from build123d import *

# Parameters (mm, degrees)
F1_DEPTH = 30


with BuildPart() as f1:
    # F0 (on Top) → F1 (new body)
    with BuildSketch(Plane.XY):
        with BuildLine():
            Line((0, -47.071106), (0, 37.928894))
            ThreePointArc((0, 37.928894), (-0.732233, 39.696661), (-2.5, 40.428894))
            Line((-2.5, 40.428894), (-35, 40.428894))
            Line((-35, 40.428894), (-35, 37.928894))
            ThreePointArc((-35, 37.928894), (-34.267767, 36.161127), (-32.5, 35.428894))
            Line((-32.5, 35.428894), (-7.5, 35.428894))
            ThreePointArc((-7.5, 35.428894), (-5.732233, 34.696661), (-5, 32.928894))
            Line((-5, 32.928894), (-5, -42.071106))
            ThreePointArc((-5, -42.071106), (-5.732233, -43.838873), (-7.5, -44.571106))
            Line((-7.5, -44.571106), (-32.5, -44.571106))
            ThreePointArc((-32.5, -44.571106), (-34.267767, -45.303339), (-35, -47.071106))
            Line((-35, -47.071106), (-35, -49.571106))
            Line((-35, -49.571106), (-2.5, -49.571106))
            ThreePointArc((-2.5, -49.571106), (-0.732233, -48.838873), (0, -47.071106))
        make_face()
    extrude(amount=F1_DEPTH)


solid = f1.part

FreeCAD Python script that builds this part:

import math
import FreeCAD as App
import Part
import Sketcher
from FreeCAD import Vector

doc = App.newDocument("Part")
params = doc.addObject("Spreadsheet::Sheet", "Params")
for row, (alias, value) in enumerate([
    ("sketch1_radius", "2.5 mm"),
    ("sketch1_width", "25 mm"),
    ("sketch1_height", "85 mm"),
    ("sketch1_width2", "32.5 mm"),
    ("pad1_length", "30 mm"),
], start=1):
    params.set(f"A{row}", alias)
    params.set(f"B{row}", "=" + value)
    params.setAlias(f"B{row}", alias)

body = doc.addObject("PartDesign::Body", "Body")

# Sketch on XY plane
sketch1 = body.newObject("Sketcher::SketchObject", "Sketch")
sketch1.AttachmentSupport = (doc.getObject("XY_Plane"), [""])
sketch1.MapMode = "FlatFace"
sketch1.addGeometry(Part.LineSegment(Vector(0, -47.1, 0), Vector(0, 37.9, 0)), False)
sketch1.addGeometry(Part.ArcOfCircle(Part.Circle(Vector(-2.5, 37.9, 0), Vector(0, 0, 1), 2.5), math.radians(0), math.radians(90)), False)
sketch1.addGeometry(Part.LineSegment(Vector(-2.5, 40.4, 0), Vector(-35, 40.4, 0)), False)
sketch1.addGeometry(Part.LineSegment(Vector(-35, 40.4, 0), Vector(-35, 37.9, 0)), False)
sketch1.addGeometry(Part.ArcOfCircle(Part.Circle(Vector(-32.5, 37.9, 0), Vector(0, 0, 1), 2.5), math.radians(180), math.radians(270)), False)
sketch1.addGeometry(Part.LineSegment(Vector(-32.5, 35.4, 0), Vector(-7.5, 35.4, 0)), False)
sketch1.addGeometry(Part.ArcOfCircle(Part.Circle(Vector(-7.5, 32.9, 0), Vector(0, 0, 1), 2.5), math.radians(0), math.radians(90)), False)
sketch1.addGeometry(Part.LineSegment(Vector(-5, 32.9, 0), Vector(-5, -42.1, 0)), False)
sketch1.addGeometry(Part.ArcOfCircle(Part.Circle(Vector(-7.5, -42.1, 0), Vector(0, 0, 1), 2.5), math.radians(-90), math.radians(0)), False)
sketch1.addGeometry(Part.LineSegment(Vector(-7.5, -44.6, 0), Vector(-32.5, -44.6, 0)), False)
sketch1.addGeometry(Part.ArcOfCircle(Part.Circle(Vector(-32.5, -47.1, 0), Vector(0, 0, 1), 2.5), math.radians(90), math.radians(180)), False)
sketch1.addGeometry(Part.LineSegment(Vector(-35, -47.1, 0), Vector(-35, -49.6, 0)), False)
sketch1.addGeometry(Part.LineSegment(Vector(-35, -49.6, 0), Vector(-2.5, -49.6, 0)), False)
sketch1.addGeometry(Part.ArcOfCircle(Part.Circle(Vector(-2.5, -47.1, 0), Vector(0, 0, 1), 2.5), math.radians(-90), math.radians(0)), False)
sketch1.addConstraint(Sketcher.Constraint("Tangent", 0, 2, 1, 1))
sketch1.addConstraint(Sketcher.Constraint("Tangent", 1, 2, 2, 1))
sketch1.addConstraint(Sketcher.Constraint("Coincident", 2, 2, 3, 1))
sketch1.addConstraint(Sketcher.Constraint("Tangent", 3, 2, 4, 1))
sketch1.addConstraint(Sketcher.Constraint("Tangent", 4, 2, 5, 1))
sketch1.addConstraint(Sketcher.Constraint("Tangent", 5, 2, 6, 2))
sketch1.addConstraint(Sketcher.Constraint("Tangent", 6, 1, 7, 1))
sketch1.addConstraint(Sketcher.Constraint("Tangent", 7, 2, 8, 2))
sketch1.addConstraint(Sketcher.Constraint("Tangent", 8, 1, 9, 1))
sketch1.addConstraint(Sketcher.Constraint("Tangent", 9, 2, 10, 1))
sketch1.addConstraint(Sketcher.Constraint("Tangent", 10, 2, 11, 1))
sketch1.addConstraint(Sketcher.Constraint("Coincident", 11, 2, 12, 1))
sketch1.addConstraint(Sketcher.Constraint("Tangent", 12, 2, 13, 1))
sketch1.addConstraint(Sketcher.Constraint("Tangent", 13, 2, 0, 1))
sketch1.addConstraint(Sketcher.Constraint("Vertical", 0))
sketch1.addConstraint(Sketcher.Constraint("Horizontal", 2))
sketch1.addConstraint(Sketcher.Constraint("Vertical", 3))
sketch1.addConstraint(Sketcher.Constraint("Horizontal", 5))
sketch1.addConstraint(Sketcher.Constraint("Vertical", 7))
sketch1.addConstraint(Sketcher.Constraint("Horizontal", 9))
sketch1.addConstraint(Sketcher.Constraint("Vertical", 11))
sketch1.addConstraint(Sketcher.Constraint("Horizontal", 12))
sketch1.addConstraint(Sketcher.Constraint("Equal", 1, 4))
sketch1.addConstraint(Sketcher.Constraint("Equal", 4, 6))
sketch1.addConstraint(Sketcher.Constraint("Equal", 6, 8))
sketch1.addConstraint(Sketcher.Constraint("Equal", 8, 10))
sketch1.addConstraint(Sketcher.Constraint("Equal", 10, 13))
sketch1.addConstraint(Sketcher.Constraint("PointOnObject", 0, 2, -2))
sketch1.addConstraint(Sketcher.Constraint("Horizontal", 1, 3, 4, 3))
sketch1.addConstraint(Sketcher.Constraint("Horizontal", 10, 3, 13, 3))
sketch1.addConstraint(Sketcher.Constraint("Vertical", 4, 3, 10, 3))
sketch1.addConstraint(Sketcher.Constraint("Radius", 1, 2.5))
sketch1.addConstraint(Sketcher.Constraint("DistanceX", 5, 1, 5, 2, 25.0))
sketch1.addConstraint(Sketcher.Constraint("DistanceY", 0, 1, 0, 2, 85.0))
sketch1.addConstraint(Sketcher.Constraint("DistanceX", 2, 2, 2, 1, 32.5))
sketch1.addConstraint(Sketcher.Constraint("DistanceY", -1, 1, 1, 3, 37.928894))
sketch1.setExpression("Constraints[31]", "Params.sketch1_radius")
sketch1.setExpression("Constraints[32]", "Params.sketch1_width")
sketch1.setExpression("Constraints[33]", "Params.sketch1_height")
sketch1.setExpression("Constraints[34]", "Params.sketch1_width2")
pad1 = body.newObject("PartDesign::Pad", "Pad")
pad1.Profile = sketch1
pad1.setExpression("Length", "Params.pad1_length")

doc.recompute()
